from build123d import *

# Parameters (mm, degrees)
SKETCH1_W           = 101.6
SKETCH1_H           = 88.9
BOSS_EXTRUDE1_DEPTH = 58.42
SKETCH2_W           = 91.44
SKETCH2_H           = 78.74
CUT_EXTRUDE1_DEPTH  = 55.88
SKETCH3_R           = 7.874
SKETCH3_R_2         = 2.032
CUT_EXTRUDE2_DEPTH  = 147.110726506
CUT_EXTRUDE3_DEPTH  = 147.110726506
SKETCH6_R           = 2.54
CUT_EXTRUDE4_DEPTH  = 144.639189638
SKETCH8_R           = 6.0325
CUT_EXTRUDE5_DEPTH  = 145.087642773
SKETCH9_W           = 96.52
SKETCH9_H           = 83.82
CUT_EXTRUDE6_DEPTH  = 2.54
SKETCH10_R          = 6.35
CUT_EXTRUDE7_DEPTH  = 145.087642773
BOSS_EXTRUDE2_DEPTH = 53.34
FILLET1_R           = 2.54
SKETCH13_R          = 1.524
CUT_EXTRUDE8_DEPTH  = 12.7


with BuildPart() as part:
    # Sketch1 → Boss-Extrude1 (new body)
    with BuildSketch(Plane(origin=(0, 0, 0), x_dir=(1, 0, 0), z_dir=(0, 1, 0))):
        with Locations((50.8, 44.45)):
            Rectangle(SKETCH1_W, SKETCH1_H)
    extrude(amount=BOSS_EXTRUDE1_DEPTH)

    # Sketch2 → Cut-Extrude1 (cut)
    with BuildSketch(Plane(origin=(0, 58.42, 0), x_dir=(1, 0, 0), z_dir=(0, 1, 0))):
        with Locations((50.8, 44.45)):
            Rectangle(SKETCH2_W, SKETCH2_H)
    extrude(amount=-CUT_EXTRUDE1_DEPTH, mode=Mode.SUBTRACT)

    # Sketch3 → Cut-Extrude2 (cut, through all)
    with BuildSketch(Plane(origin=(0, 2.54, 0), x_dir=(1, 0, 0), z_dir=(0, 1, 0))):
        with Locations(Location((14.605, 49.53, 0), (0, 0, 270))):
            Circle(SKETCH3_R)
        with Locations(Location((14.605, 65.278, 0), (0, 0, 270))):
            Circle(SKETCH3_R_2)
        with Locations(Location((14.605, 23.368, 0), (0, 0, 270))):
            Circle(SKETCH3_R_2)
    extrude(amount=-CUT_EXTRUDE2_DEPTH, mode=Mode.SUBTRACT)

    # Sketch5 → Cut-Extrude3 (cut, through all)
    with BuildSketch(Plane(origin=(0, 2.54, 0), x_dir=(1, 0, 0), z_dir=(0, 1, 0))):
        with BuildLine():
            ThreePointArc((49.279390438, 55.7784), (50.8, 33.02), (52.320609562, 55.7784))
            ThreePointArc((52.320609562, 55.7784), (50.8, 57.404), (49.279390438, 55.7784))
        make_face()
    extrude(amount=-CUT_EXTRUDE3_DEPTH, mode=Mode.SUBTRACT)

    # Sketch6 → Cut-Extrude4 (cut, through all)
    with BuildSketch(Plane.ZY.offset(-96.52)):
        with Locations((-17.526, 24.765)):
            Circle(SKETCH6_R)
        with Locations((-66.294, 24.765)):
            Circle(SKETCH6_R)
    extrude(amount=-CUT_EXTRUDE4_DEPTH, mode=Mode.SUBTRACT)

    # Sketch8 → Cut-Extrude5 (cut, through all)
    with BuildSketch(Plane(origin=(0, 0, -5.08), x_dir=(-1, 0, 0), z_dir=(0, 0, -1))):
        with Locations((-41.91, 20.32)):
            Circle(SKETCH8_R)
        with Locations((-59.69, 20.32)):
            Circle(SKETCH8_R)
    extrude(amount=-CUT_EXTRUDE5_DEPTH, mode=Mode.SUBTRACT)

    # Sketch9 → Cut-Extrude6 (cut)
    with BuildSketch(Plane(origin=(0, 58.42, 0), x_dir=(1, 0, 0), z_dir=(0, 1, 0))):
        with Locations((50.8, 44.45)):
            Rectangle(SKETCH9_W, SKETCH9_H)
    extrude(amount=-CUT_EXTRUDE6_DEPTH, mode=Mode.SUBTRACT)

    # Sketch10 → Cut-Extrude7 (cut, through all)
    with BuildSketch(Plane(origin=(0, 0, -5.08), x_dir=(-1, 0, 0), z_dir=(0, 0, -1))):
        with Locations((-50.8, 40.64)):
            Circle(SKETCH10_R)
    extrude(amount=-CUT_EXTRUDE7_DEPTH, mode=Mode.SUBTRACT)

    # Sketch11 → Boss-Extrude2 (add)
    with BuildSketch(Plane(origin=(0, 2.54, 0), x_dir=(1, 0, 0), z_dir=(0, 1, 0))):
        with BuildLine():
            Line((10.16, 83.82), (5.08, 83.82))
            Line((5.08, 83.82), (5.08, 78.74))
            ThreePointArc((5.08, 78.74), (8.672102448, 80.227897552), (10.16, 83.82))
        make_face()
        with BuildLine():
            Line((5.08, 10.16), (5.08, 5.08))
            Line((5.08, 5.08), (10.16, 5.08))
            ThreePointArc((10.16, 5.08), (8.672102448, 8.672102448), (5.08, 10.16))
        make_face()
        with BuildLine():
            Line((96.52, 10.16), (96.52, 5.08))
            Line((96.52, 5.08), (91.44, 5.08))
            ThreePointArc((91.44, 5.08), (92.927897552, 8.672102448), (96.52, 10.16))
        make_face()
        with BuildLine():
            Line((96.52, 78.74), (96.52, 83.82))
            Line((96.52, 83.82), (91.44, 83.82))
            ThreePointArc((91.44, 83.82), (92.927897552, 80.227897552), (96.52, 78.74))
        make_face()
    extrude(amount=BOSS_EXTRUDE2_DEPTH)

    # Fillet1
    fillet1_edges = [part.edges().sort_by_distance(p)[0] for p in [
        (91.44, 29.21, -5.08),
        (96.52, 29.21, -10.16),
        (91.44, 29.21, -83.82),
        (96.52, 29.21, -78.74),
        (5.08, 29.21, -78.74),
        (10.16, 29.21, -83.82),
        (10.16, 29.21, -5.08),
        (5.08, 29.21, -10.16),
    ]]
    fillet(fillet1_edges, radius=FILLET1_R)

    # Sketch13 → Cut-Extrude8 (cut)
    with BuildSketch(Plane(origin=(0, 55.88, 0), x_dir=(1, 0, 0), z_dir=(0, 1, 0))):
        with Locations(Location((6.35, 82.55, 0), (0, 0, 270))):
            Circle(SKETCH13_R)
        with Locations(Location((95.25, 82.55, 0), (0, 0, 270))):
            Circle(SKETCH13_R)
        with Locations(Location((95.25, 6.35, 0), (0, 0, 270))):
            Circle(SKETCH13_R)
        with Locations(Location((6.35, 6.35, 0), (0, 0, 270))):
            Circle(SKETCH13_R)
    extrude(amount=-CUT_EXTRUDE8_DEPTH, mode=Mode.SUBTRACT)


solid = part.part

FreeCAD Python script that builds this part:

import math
import FreeCAD as App
import Part
import Sketcher
from FreeCAD import Vector
Q = App.Units.Quantity


def edges_at(feature, points):
    """Names of the edges that pass closest to the given points."""
    edges = feature.Shape.Edges
    near = lambda p: min(range(len(edges)), key=lambda i: edges[i].distToShape(Part.Vertex(*p))[0])
    return sorted({f"Edge{near(p) + 1}" for p in points})


def add_polygon(sketch, points):
    """Adds a closed chain of lines whose ends are joined by coincident constraints."""
    first, n = sketch.GeometryCount, len(points)
    for a, b in zip(points, points[1:] + points[:1]):
        sketch.addGeometry(Part.LineSegment(App.Vector(*a, 0), App.Vector(*b, 0)), False)
    for i in range(n):
        sketch.addConstraint(Sketcher.Constraint("Coincident", first + i, 2, first + (i + 1) % n, 1))

doc = App.newDocument("Part")
body = doc.addObject("PartDesign::Body", "Body")

sketch1 = doc.addObject("Sketcher::SketchObject", "Sketch")
body.addObject(sketch1)
sketch1.AttachmentSupport = (doc.XZ_Plane, [""])
sketch1.MapMode = "FlatFace"
add_polygon(sketch1, [(0, -88.9), (0, 0), (101.6, 0), (101.6, -88.9)])
sketch1.addConstraint(Sketcher.Constraint("Vertical", 0))
sketch1.addConstraint(Sketcher.Constraint("Horizontal", 1))
sketch1.addConstraint(Sketcher.Constraint("Vertical", 2))
sketch1.addConstraint(Sketcher.Constraint("Horizontal", 3))
sketch1.addConstraint(Sketcher.Constraint("Coincident", 0, 2, -1, 1))
sketch1.addConstraint(Sketcher.Constraint("DistanceX", 1, 1, 1, 2, Q("4 in")))
sketch1.addConstraint(Sketcher.Constraint("DistanceY", 0, 1, 0, 2, Q("3.5 in")))
pad1 = doc.addObject("PartDesign::Pad", "Pad")
body.addObject(pad1)
pad1.Profile = sketch1
pad1.Length = Q("2.3 in")
pad1.Reversed = True

sketch2 = doc.addObject("Sketcher::SketchObject", "Sketch001")
body.addObject(sketch2)
sketch2.AttachmentSupport = (doc.XZ_Plane, [""])
sketch2.MapMode = "FlatFace"
sketch2.AttachmentOffset = App.Placement(Vector(0, 0, -2.3 * 25.4), App.Rotation())
add_polygon(sketch2, [(5.08, -83.82), (5.08, -5.08), (96.52, -5.08), (96.52, -83.82)])
sketch2.addConstraint(Sketcher.Constraint("Vertical", 0))
sketch2.addConstraint(Sketcher.Constraint("Horizontal", 1))
sketch2.addConstraint(Sketcher.Constraint("Vertical", 2))
sketch2.addConstraint(Sketcher.Constraint("Horizontal", 3))
sketch2.addConstraint(Sketcher.Constraint("DistanceX", 1, 1, 1, 2, Q("3.6 in")))
sketch2.addConstraint(Sketcher.Constraint("DistanceY", 0, 1, 0, 2, Q("3.1 in")))
sketch2.addConstraint(Sketcher.Constraint("DistanceX", -1, 1, 0, 2, Q("0.2 in")))
sketch2.addConstraint(Sketcher.Constraint("DistanceY", 0, 2, -1, 1, Q("0.2 in")))
pocket1 = doc.addObject("PartDesign::Pocket", "Pocket")
body.addObject(pocket1)
pocket1.Profile = sketch2
pocket1.Length = Q("2.2 in")
pocket1.Reversed = True

sketch3 = doc.addObject("Sketcher::SketchObject", "Sketch002")
body.addObject(sketch3)
sketch3.AttachmentSupport = (doc.XZ_Plane, [""])
sketch3.MapMode = "FlatFace"
sketch3.AttachmentOffset = App.Placement(Vector(0, 0, -0.1 * 25.4), App.Rotation())
sketch3.addGeometry(Part.Circle(Vector(14.605, -49.53, 0), Vector(0, 0, 1), 7.874), False)
sketch3.addGeometry(Part.Circle(Vector(14.605, -65.278, 0), Vector(0, 0, 1), 2.032), False)
sketch3.addGeometry(Part.Circle(Vector(14.605, -23.368, 0), Vector(0, 0, 1), 2.032), False)
sketch3.addConstraint(Sketcher.Constraint("Equal", 1, 2))
sketch3.addConstraint(Sketcher.Constraint("Vertical", 0, 3, 1, 3))
sketch3.addConstraint(Sketcher.Constraint("Vertical", 1, 3, 2, 3))
sketch3.addConstraint(Sketcher.Constraint("Diameter", 0, Q("0.62 in")))
sketch3.addConstraint(Sketcher.Constraint("Diameter", 1, Q("0.16 in")))
sketch3.addConstraint(Sketcher.Constraint("DistanceY", 0, 3, -1, 1, Q("1.95 in")))
sketch3.addConstraint(Sketcher.Constraint("DistanceY", 1, 3, -1, 1, Q("2.57 in")))
sketch3.addConstraint(Sketcher.Constraint("DistanceY", 2, 3, -1, 1, Q("0.92 in")))
sketch3.addConstraint(Sketcher.Constraint("DistanceX", -1, 1, 0, 3, Q("0.575 in")))
pocket2 = doc.addObject("PartDesign::Pocket", "Pocket001")
body.addObject(pocket2)
pocket2.Profile = sketch3
pocket2.Type = "ThroughAll"
pocket2.Reversed = True

sketch4 = doc.addObject("Sketcher::SketchObject", "Sketch003")
body.addObject(sketch4)
sketch4.AttachmentSupport = (doc.XZ_Plane, [""])
sketch4.MapMode = "FlatFace"
sketch4.AttachmentOffset = App.Placement(Vector(0, 0, -0.1 * 25.4), App.Rotation())
sketch4.addGeometry(Part.ArcOfCircle(Part.Circle(Vector(50.8, -44.45, 0), Vector(0, 0, 1), 11.43), math.radians(-82.354893), math.radians(262.354893)), False)
sketch4.addGeometry(Part.ArcOfCircle(Part.Circle(Vector(50.8, -55.88, 0), Vector(0, 0, 1), 1.524), math.radians(176.177446), math.radians(363.822554)), False)
sketch4.addConstraint(Sketcher.Constraint("Coincident", 0, 1, 1, 2))
sketch4.addConstraint(Sketcher.Constraint("Coincident", 1, 1, 0, 2))
sketch4.addConstraint(Sketcher.Constraint("Horizontal", 0, 1, 1, 1))
sketch4.addConstraint(Sketcher.Constraint("Radius", 0, Q("0.45 in")))
sketch4.addConstraint(Sketcher.Constraint("Radius", 1, Q("0.06 in")))
sketch4.addConstraint(Sketcher.Constraint("DistanceX", -1, 1, 0, 3, Q("2 in")))
sketch4.addConstraint(Sketcher.Constraint("DistanceY", 1, 3, -1, 1, Q("2.2 in")))
sketch4.addConstraint(Sketcher.Constraint("DistanceY", 0, 3, -1, 1, Q("1.75 in")))
pocket3 = doc.addObject("PartDesign::Pocket", "Pocket002")
body.addObject(pocket3)
pocket3.Profile = sketch4
pocket3.Type = "ThroughAll"
pocket3.Reversed = True

sketch5 = doc.addObject("Sketcher::SketchObject", "Sketch004")
body.addObject(sketch5)
sketch5.AttachmentSupport = (doc.YZ_Plane, [""])
sketch5.MapMode = "FlatFace"
sketch5.AttachmentOffset = App.Placement(Vector(0, 0, 3.8 * 25.4), App.Rotation())
sketch5.addGeometry(Part.Circle(Vector(24.765, -17.526, 0), Vector(0, 0, 1), 2.54), False)
sketch5.addGeometry(Part.Circle(Vector(24.765, -66.294, 0), Vector(0, 0, 1), 2.54), False)
sketch5.addConstraint(Sketcher.Constraint("Equal", 0, 1))
sketch5.addConstraint(Sketcher.Constraint("Vertical", 0, 3, 1, 3))
sketch5.addConstraint(Sketcher.Constraint("Diameter", 0, Q("0.2 in")))
sketch5.addConstraint(Sketcher.Constraint("DistanceY", 0, 3, -1, 1, Q("0.69 in")))
sketch5.addConstraint(Sketcher.Constraint("DistanceY", 1, 3, -1, 1, Q("2.61 in")))
sketch5.addConstraint(Sketcher.Constraint("DistanceX", -1, 1, 0, 3, Q("0.975 in")))
pocket4 = doc.addObject("PartDesign::Pocket", "Pocket003")
body.addObject(pocket4)
pocket4.Profile = sketch5
pocket4.Type = "ThroughAll"
pocket4.Reversed = True

sketch6 = doc.addObject("Sketcher::SketchObject", "Sketch005")
body.addObject(sketch6)
sketch6.AttachmentSupport = (doc.XY_Plane, [""])
sketch6.MapMode = "FlatFace"
sketch6.AttachmentOffset = App.Placement(Vector(0, 0, -0.2 * 25.4), App.Rotation())
sketch6.addGeometry(Part.Circle(Vector(41.91, 20.32, 0), Vector(0, 0, 1), 6.0325), False)
sketch6.addGeometry(Part.Circle(Vector(59.69, 20.32, 0), Vector(0, 0, 1), 6.0325), False)
sketch6.addConstraint(Sketcher.Constraint("Equal", 0, 1))
sketch6.addConstraint(Sketcher.Constraint("Horizontal", 0, 3, 1, 3))
sketch6.addConstraint(Sketcher.Constraint("Diameter", 0, Q("0.475 in")))
sketch6.addConstraint(Sketcher.Constraint("DistanceY", -1, 1, 0, 3, Q("0.8 in")))
sketch6.addConstraint(Sketcher.Constraint("DistanceX", 0, 3, 1, 3, Q("0.7 in")))
sketch6.addConstraint(Sketcher.Constraint("DistanceX", -1, 1, 0, 3, Q("1.65 in")))
pocket5 = doc.addObject("PartDesign::Pocket", "Pocket004")
body.addObject(pocket5)
pocket5.Profile = sketch6
pocket5.Type = "ThroughAll"
pocket5.Reversed = True

sketch7 = doc.addObject("Sketcher::SketchObject", "Sketch006")
body.addObject(sketch7)
sketch7.AttachmentSupport = (doc.XZ_Plane, [""])
sketch7.MapMode = "FlatFace"
sketch7.AttachmentOffset = App.Placement(Vector(0, 0, -2.3 * 25.4), App.Rotation())
add_polygon(sketch7, [(2.54, -86.36), (2.54, -2.54), (99.06, -2.54), (99.06, -86.36)])
sketch7.addConstraint(Sketcher.Constraint("Vertical", 0))
sketch7.addConstraint(Sketcher.Constraint("Horizontal", 1))
sketch7.addConstraint(Sketcher.Constraint("Vertical", 2))
sketch7.addConstraint(Sketcher.Constraint("Horizontal", 3))
sketch7.addConstraint(Sketcher.Constraint("DistanceX", 1, 1, 1, 2, Q("3.8 in")))
sketch7.addConstraint(Sketcher.Constraint("DistanceY", 0, 1, 0, 2, Q("3.3 in")))
sketch7.addConstraint(Sketcher.Constraint("DistanceX", -1, 1, 0, 2, Q("0.1 in")))
sketch7.addConstraint(Sketcher.Constraint("DistanceY", 0, 2, -1, 1, Q("0.1 in")))
pocket6 = doc.addObject("PartDesign::Pocket", "Pocket005")
body.addObject(pocket6)
pocket6.Profile = sketch7
pocket6.Length = Q("0.1 in")
pocket6.Reversed = True

sketch8 = doc.addObject("Sketcher::SketchObject", "Sketch007")
body.addObject(sketch8)
sketch8.AttachmentSupport = (doc.XY_Plane, [""])
sketch8.MapMode = "FlatFace"
sketch8.AttachmentOffset = App.Placement(Vector(0, 0, -0.2 * 25.4), App.Rotation())
sketch8.addGeometry(Part.Circle(Vector(50.8, 40.64, 0), Vector(0, 0, 1), 6.35), False)
sketch8.addConstraint(Sketcher.Constraint("Diameter", 0, Q("0.5 in")))
sketch8.addConstraint(Sketcher.Constraint("DistanceX", -1, 1, 0, 3, Q("2 in")))
sketch8.addConstraint(Sketcher.Constraint("DistanceY", -1, 1, 0, 3, Q("1.6 in")))
pocket7 = doc.addObject("PartDesign::Pocket", "Pocket006")
body.addObject(pocket7)
pocket7.Profile = sketch8
pocket7.Type = "ThroughAll"
pocket7.Reversed = True

sketch9 = doc.addObject("Sketcher::SketchObject", "Sketch008")
body.addObject(sketch9)
sketch9.AttachmentSupport = (doc.XZ_Plane, [""])
sketch9.MapMode = "FlatFace"
sketch9.AttachmentOffset = App.Placement(Vector(0, 0, -0.1 * 25.4), App.Rotation())
sketch9.addGeometry(Part.LineSegment(Vector(10.16, -83.82, 0), Vector(5.08, -83.82, 0)), False)
sketch9.addGeometry(Part.LineSegment(Vector(5.08, -83.82, 0), Vector(5.08, -78.74, 0)), False)
sketch9.addGeometry(Part.ArcOfCircle(Part.Circle(Vector(5.08, -83.82, 0), Vector(0, 0, 1), 5.08), math.radians(0), math.radians(90)), False)
sketch9.addGeometry(Part.LineSegment(Vector(5.08, -10.16, 0), Vector(5.08, -5.08, 0)), False)
sketch9.addGeometry(Part.LineSegment(Vector(5.08, -5.08, 0), Vector(10.16, -5.08, 0)), False)
sketch9.addGeometry(Part.ArcOfCircle(Part.Circle(Vector(5.08, -5.08, 0), Vector(0, 0, 1), 5.08), math.radians(-90), math.radians(0)), False)
sketch9.addGeometry(Part.LineSegment(Vector(96.52, -5.08, 0), Vector(96.52, -10.16, 0)), False)
sketch9.addGeometry(Part.ArcOfCircle(Part.Circle(Vector(96.52, -5.08, 0), Vector(0, 0, 1), 5.08), math.radians(-180), math.radians(-90)), False)
sketch9.addGeometry(Part.LineSegment(Vector(91.44, -5.08, 0), Vector(96.52, -5.08, 0)), False)
sketch9.addGeometry(Part.LineSegment(Vector(96.52, -78.74, 0), Vector(96.52, -83.82, 0)), False)
sketch9.addGeometry(Part.LineSegment(Vector(96.52, -83.82, 0), Vector(91.44, -83.82, 0)), False)
sketch9.addGeometry(Part.ArcOfCircle(Part.Circle(Vector(96.52, -83.82, 0), Vector(0, 0, 1), 5.08), math.radians(90), math.radians(180)), False)
sketch9.addConstraint(Sketcher.Constraint("Coincident", 0, 2, 1, 1))
sketch9.addConstraint(Sketcher.Constraint("Coincident", 1, 2, 2, 2))
sketch9.addConstraint(Sketcher.Constraint("Coincident", 2, 1, 0, 1))
sketch9.addConstraint(Sketcher.Constraint("Coincident", 3, 2, 4, 1))
sketch9.addConstraint(Sketcher.Constraint("Coincident", 4, 2, 5, 2))
sketch9.addConstraint(Sketcher.Constraint("Coincident", 5, 1, 3, 1))
sketch9.addConstraint(Sketcher.Constraint("Coincident", 6, 2, 7, 2))
sketch9.addConstraint(Sketcher.Constraint("Coincident", 7, 1, 8, 1))
sketch9.addConstraint(Sketcher.Constraint("Coincident", 8, 2, 6, 1))
sketch9.addConstraint(Sketcher.Constraint("Coincident", 9, 2, 10, 1))
sketch9.addConstraint(Sketcher.Constraint("Coincident", 10, 2, 11, 2))
sketch9.addConstraint(Sketcher.Constraint("Coincident", 11, 1, 9, 1))
sketch9.addConstraint(Sketcher.Constraint("Horizontal", 0))
sketch9.addConstraint(Sketcher.Constraint("Vertical", 1))
sketch9.addConstraint(Sketcher.Constraint("Vertical", 3))
sketch9.addConstraint(Sketcher.Constraint("Horizontal", 4))
sketch9.addConstraint(Sketcher.Constraint("Vertical", 6))
sketch9.addConstraint(Sketcher.Constraint("Horizontal", 8))
sketch9.addConstraint(Sketcher.Constraint("Vertical", 9))
sketch9.addConstraint(Sketcher.Constraint("Horizontal", 10))
sketch9.addConstraint(Sketcher.Constraint("Coincident", 0, 2, 2, 3))
sketch9.addConstraint(Sketcher.Constraint("Coincident", 3, 2, 5, 3))
sketch9.addConstraint(Sketcher.Constraint("Coincident", 8, 2, 7, 3))
sketch9.addConstraint(Sketcher.Constraint("Coincident", 9, 2, 11, 3))
sketch9.addConstraint(Sketcher.Constraint("Equal", 2, 5))
sketch9.addConstraint(Sketcher.Constraint("Equal", 5, 7))
sketch9.addConstraint(Sketcher.Constraint("Equal", 7, 11))
sketch9.addConstraint(Sketcher.Constraint("Horizontal", 5, 3, 7, 3))
sketch9.addConstraint(Sketcher.Constraint("Horizontal", 2, 3, 11, 3))
sketch9.addConstraint(Sketcher.Constraint("Vertical", 2, 3, 5, 3))
sketch9.addConstraint(Sketcher.Constraint("Vertical", 7, 3, 11, 3))
sketch9.addConstraint(Sketcher.Constraint("Radius", 2, Q("0.2 in")))
sketch9.addConstraint(Sketcher.Constraint("DistanceX", -1, 1, 2, 3, Q("0.2 in")))
sketch9.addConstraint(Sketcher.Constraint("DistanceY", 2, 3, -1, 1, Q("3.3 in")))
sketch9.addConstraint(Sketcher.Constraint("DistanceY", 5, 3, -1, 1, Q("0.2 in")))
sketch9.addConstraint(Sketcher.Constraint("DistanceX", -1, 1, 7, 3, Q("3.8 in")))
pad2 = doc.addObject("PartDesign::Pad", "Pad001")
body.addObject(pad2)
pad2.Profile = sketch9
pad2.Length = Q("2.1 in")
pad2.Reversed = True
doc.recompute()

fillet = doc.addObject("PartDesign::Fillet", "Fillet")
body.addObject(fillet)
fillet.Base = (pad2, edges_at(pad2, [
    (91.44, 29.21, -5.08),
    (96.52, 29.21, -10.16),
    (91.44, 29.21, -83.82),
    (96.52, 29.21, -78.74),
    (5.08, 29.21, -78.74),
    (10.16, 29.21, -83.82),
    (10.16, 29.21, -5.08),
    (5.08, 29.21, -10.16),
]))
fillet.Radius = Q("0.1 in")

sketch10 = doc.addObject("Sketcher::SketchObject", "Sketch009")
body.addObject(sketch10)
sketch10.AttachmentSupport = (doc.XZ_Plane, [""])
sketch10.MapMode = "FlatFace"
sketch10.AttachmentOffset = App.Placement(Vector(0, 0, -2.2 * 25.4), App.Rotation())
sketch10.addGeometry(Part.Circle(Vector(6.35, -82.55, 0), Vector(0, 0, 1), 1.524), False)
sketch10.addGeometry(Part.Circle(Vector(95.25, -82.55, 0), Vector(0, 0, 1), 1.524), False)
sketch10.addGeometry(Part.Circle(Vector(95.25, -6.35, 0), Vector(0, 0, 1), 1.524), False)
sketch10.addGeometry(Part.Circle(Vector(6.35, -6.35, 0), Vector(0, 0, 1), 1.524), False)
sketch10.addConstraint(Sketcher.Constraint("Equal", 0, 1))
sketch10.addConstraint(Sketcher.Constraint("Equal", 1, 2))
sketch10.addConstraint(Sketcher.Constraint("Equal", 2, 3))
sketch10.addConstraint(Sketcher.Constraint("Horizontal", 0, 3, 1, 3))
sketch10.addConstraint(Sketcher.Constraint("Horizontal", 2, 3, 3, 3))
sketch10.addConstraint(Sketcher.Constraint("Vertical", 1, 3, 2, 3))
sketch10.addConstraint(Sketcher.Constraint("Vertical", 0, 3, 3, 3))
sketch10.addConstraint(Sketcher.Constraint("Diameter", 0, Q("0.12 in")))
sketch10.addConstraint(Sketcher.Constraint("DistanceY", 1, 3, 2, 3, Q("3 in")))
sketch10.addConstraint(Sketcher.Constraint("DistanceX", 0, 3, 1, 3, Q("3.5 in")))
sketch10.addConstraint(Sketcher.Constraint("DistanceX", -1, 1, 0, 3, Q("0.25 in")))
sketch10.addConstraint(Sketcher.Constraint("DistanceY", 0, 3, -1, 1, Q("3.25 in")))
pocket8 = doc.addObject("PartDesign::Pocket", "Pocket007")
body.addObject(pocket8)
pocket8.Profile = sketch10
pocket8.Length = Q("0.5 in")
pocket8.Reversed = True

doc.recompute()
